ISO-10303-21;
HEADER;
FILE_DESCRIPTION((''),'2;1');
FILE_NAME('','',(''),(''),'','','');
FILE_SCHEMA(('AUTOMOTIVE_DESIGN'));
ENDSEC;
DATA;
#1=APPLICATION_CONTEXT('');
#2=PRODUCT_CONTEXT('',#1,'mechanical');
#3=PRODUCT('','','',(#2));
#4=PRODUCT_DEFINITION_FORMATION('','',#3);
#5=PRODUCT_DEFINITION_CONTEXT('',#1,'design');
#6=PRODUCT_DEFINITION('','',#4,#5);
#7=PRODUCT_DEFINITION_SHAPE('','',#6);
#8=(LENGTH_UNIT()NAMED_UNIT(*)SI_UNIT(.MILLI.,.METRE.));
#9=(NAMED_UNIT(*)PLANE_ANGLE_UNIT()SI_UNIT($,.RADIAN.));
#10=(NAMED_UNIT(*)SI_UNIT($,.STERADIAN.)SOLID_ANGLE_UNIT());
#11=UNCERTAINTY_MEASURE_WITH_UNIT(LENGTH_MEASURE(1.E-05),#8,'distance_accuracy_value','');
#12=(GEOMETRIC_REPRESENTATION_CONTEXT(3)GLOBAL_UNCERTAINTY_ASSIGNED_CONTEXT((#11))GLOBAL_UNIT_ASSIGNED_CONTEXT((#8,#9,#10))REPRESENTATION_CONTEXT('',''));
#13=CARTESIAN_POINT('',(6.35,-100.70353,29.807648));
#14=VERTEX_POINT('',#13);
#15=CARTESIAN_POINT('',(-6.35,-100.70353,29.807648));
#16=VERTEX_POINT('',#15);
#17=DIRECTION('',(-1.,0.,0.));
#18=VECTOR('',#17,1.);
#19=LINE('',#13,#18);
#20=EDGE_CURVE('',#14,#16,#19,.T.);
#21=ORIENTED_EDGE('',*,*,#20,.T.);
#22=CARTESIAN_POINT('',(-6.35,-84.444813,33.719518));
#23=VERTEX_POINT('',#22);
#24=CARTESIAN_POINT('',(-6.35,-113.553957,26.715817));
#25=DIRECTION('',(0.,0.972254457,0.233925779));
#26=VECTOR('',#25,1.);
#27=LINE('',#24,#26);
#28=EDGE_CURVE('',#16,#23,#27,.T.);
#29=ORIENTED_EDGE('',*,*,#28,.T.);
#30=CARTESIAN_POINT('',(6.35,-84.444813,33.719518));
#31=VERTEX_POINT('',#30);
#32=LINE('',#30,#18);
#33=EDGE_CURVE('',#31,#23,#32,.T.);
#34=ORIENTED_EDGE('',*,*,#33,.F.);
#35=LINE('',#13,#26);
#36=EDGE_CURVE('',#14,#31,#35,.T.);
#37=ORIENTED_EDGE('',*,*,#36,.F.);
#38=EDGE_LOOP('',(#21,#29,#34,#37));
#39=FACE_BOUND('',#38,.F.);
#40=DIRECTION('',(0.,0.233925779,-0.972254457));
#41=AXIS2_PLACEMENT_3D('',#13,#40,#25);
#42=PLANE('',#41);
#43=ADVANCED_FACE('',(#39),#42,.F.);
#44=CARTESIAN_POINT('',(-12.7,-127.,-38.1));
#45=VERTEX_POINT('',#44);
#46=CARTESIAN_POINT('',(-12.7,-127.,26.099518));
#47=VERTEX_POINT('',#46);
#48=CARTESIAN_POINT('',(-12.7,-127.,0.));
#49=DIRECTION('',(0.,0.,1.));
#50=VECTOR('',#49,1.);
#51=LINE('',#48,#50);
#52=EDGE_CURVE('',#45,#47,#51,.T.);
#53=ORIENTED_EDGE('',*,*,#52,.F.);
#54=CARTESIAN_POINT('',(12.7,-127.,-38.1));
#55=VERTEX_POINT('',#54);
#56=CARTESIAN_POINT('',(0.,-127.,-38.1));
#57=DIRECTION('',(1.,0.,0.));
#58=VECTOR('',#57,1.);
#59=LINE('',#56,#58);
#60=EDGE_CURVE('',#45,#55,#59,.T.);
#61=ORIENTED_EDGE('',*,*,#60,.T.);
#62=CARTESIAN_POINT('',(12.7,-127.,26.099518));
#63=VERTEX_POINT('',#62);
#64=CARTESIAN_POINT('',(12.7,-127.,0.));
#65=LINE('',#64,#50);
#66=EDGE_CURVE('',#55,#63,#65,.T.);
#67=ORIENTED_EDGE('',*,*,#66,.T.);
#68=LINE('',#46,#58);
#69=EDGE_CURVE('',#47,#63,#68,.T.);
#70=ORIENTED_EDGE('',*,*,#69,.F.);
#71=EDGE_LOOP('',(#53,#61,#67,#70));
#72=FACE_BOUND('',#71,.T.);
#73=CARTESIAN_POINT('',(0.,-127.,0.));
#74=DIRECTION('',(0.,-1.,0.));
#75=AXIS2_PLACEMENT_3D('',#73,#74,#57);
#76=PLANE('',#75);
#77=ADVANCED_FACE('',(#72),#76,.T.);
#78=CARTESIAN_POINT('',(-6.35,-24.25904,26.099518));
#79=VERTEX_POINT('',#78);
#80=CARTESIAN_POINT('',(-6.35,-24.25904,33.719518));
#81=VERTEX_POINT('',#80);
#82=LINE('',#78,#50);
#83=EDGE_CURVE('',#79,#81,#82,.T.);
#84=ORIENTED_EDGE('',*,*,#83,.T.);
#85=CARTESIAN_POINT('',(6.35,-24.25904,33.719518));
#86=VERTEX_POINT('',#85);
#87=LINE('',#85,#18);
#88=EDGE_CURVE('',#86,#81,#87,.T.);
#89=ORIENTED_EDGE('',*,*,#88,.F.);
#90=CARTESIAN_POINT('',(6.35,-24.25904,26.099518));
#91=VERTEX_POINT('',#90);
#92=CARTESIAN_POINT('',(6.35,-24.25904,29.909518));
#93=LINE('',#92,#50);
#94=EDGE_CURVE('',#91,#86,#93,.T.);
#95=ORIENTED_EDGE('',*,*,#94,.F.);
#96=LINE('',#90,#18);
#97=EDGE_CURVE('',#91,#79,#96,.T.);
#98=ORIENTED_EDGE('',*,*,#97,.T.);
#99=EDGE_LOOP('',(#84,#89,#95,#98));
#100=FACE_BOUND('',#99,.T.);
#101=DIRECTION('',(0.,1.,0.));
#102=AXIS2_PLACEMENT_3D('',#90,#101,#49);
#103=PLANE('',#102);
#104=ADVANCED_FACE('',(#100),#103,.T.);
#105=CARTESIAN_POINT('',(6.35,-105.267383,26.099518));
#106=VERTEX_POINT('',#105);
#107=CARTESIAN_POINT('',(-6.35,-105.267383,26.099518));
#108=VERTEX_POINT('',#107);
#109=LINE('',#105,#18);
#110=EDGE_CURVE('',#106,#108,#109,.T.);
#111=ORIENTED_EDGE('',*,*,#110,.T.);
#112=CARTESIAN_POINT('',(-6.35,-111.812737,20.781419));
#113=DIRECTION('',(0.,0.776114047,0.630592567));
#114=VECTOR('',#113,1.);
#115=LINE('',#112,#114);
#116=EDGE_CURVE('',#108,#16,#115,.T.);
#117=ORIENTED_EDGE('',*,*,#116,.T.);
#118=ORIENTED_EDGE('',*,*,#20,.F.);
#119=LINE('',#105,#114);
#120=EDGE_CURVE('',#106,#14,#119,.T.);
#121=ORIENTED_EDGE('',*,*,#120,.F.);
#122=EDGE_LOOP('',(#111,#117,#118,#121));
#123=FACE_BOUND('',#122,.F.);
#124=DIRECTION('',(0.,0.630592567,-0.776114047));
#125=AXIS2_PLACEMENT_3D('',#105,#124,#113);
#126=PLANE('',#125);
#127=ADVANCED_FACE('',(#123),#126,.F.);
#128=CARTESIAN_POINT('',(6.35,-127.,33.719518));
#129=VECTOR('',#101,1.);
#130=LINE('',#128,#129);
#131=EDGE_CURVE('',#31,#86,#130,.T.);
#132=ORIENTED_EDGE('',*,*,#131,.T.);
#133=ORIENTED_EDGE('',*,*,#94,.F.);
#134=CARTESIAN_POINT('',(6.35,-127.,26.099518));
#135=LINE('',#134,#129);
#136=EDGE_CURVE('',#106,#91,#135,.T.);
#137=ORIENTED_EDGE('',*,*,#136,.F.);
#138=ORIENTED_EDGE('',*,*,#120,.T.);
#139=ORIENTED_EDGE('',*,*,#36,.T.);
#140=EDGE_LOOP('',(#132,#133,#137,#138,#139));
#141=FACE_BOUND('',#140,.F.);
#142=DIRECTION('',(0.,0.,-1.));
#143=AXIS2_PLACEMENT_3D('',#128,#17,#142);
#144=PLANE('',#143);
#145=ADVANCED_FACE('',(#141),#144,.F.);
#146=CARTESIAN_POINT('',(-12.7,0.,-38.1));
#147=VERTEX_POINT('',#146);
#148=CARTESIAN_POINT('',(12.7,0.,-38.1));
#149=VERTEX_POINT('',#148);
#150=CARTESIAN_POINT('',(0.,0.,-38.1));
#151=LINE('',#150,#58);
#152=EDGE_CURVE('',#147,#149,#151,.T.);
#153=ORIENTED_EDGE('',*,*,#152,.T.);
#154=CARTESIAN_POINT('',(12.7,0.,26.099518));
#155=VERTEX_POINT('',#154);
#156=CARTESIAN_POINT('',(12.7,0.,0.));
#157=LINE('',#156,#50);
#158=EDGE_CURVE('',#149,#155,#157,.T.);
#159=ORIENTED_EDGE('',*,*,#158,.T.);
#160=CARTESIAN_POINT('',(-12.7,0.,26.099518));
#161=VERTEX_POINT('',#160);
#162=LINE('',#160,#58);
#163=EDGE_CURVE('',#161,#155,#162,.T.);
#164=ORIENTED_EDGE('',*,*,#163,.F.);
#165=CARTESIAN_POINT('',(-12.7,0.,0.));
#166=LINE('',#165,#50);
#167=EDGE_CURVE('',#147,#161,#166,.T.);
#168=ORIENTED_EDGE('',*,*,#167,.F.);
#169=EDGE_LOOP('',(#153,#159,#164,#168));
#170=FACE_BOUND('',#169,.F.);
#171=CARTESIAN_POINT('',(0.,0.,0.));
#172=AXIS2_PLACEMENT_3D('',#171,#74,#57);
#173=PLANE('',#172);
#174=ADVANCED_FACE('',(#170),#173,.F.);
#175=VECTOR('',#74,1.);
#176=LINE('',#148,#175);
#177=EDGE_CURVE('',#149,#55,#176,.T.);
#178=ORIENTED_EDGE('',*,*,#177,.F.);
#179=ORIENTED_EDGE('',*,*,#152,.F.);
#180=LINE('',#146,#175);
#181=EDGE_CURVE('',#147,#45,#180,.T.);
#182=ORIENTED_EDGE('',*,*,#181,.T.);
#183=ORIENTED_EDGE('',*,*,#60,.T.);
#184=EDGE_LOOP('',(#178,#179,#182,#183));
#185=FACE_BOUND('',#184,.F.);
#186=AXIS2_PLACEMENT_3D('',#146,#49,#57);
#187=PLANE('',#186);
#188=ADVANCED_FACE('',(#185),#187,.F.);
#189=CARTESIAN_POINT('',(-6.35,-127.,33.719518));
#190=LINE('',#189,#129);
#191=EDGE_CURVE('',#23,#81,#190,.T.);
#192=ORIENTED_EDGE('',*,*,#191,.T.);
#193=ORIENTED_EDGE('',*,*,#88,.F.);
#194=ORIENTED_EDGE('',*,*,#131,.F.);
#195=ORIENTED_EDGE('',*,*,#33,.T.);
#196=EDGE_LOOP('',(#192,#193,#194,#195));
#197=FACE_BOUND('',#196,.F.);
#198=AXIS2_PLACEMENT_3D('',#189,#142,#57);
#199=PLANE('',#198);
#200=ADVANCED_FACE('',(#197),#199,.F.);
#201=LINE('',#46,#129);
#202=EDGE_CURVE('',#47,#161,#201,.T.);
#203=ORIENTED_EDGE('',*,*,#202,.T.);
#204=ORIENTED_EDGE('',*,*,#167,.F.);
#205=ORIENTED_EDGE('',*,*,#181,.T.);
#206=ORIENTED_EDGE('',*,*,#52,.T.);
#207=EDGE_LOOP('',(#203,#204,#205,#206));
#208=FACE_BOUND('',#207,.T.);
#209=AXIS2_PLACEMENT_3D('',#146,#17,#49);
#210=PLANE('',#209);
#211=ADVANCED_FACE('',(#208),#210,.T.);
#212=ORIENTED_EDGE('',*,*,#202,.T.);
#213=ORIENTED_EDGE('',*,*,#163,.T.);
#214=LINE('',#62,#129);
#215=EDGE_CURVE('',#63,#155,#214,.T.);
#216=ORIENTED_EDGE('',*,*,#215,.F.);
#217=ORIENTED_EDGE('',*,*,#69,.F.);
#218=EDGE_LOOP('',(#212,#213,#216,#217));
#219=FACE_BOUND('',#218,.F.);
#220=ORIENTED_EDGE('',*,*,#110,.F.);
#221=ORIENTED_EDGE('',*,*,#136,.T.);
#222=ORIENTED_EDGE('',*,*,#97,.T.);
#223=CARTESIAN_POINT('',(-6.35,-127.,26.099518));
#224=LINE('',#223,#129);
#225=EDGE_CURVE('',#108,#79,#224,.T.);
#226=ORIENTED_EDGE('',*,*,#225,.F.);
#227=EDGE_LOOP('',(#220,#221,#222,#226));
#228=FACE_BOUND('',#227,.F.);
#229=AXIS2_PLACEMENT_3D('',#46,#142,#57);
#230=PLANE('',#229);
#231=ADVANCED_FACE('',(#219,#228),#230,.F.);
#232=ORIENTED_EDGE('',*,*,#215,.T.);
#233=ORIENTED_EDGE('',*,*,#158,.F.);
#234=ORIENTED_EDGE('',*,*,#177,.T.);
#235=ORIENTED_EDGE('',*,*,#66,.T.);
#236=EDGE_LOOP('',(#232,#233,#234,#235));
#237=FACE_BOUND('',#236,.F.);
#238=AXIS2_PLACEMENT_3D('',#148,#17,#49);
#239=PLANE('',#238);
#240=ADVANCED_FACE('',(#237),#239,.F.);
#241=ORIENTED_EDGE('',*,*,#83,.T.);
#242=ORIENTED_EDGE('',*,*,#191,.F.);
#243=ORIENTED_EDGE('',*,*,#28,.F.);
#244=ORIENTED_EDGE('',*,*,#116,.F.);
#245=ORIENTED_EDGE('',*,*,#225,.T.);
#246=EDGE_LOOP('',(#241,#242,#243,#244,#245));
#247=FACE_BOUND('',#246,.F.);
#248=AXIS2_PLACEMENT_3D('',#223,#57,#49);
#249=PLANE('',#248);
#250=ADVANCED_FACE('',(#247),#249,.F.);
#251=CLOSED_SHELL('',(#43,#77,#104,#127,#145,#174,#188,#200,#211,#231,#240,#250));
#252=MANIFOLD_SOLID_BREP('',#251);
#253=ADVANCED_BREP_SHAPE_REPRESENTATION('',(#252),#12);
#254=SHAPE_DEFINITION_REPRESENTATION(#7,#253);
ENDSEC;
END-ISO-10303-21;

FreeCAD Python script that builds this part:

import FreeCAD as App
import Part
import Sketcher

V = App.Vector
Q = App.Units.Quantity


def add_polygon(sketch, points):
    """Adds a closed chain of lines whose ends are joined by coincident constraints."""
    first, n = sketch.GeometryCount, len(points)
    for a, b in zip(points, points[1:] + points[:1]):
        sketch.addGeometry(Part.LineSegment(App.Vector(*a, 0), App.Vector(*b, 0)), False)
    for i in range(n):
        sketch.addConstraint(Sketcher.Constraint("Coincident", first + i, 2, first + (i + 1) % n, 1))

doc = App.newDocument("Part")
params = doc.addObject("Spreadsheet::Sheet", "Params")
for row, (alias, value) in enumerate([
    ("sketch1_width", "1 in"),
    ("sketch1_height", "3 in"),
    ("pad1_length", "5 in"),
    ("sketch2_width", "1 in"),
    ("sketch2_width2", "0.5 in"),
    ("sketch2_height", "0.3 in"),
    ("pocket1_length", "7 in"),
    ("sketch3_height", "0.3 in"),
    ("pocket2_length", "1 in"),
], start=1):
    params.set(f"A{row}", alias)
    params.set(f"B{row}", "=" + value)
    params.setAlias(f"B{row}", alias)

body = doc.addObject("PartDesign::Body", "Body")

# Sketch on XZ plane
sketch1 = body.newObject("Sketcher::SketchObject", "Sketch")
sketch1.AttachmentSupport = (doc.getObject("XZ_Plane"), [""])
sketch1.MapMode = "FlatFace"
add_polygon(sketch1, [(-13, 38), (-13, -38), (13, -38), (13, 38)])  # lines 0-3
sketch1.addConstraint(Sketcher.Constraint("Vertical", 0))
sketch1.addConstraint(Sketcher.Constraint("Horizontal", 1))
sketch1.addConstraint(Sketcher.Constraint("Vertical", 2))
sketch1.addConstraint(Sketcher.Constraint("Horizontal", 3))
sketch1.addConstraint(Sketcher.Constraint("Symmetric", 0, 2, 2, 2, -1, 1))
sketch1.addConstraint(Sketcher.Constraint("DistanceX", 1, 1, 1, 2, Q("1 in")))
sketch1.addConstraint(Sketcher.Constraint("DistanceY", 0, 2, 0, 1, Q("3 in")))
sketch1.setExpression("Constraints[9]", "Params.sketch1_width")
sketch1.setExpression("Constraints[10]", "Params.sketch1_height")
pad1 = body.newObject("PartDesign::Pad", "Pad")
pad1.Profile = sketch1
pad1.setExpression("Length", "Params.pad1_length")

# Sketch on XZ plane
sketch2 = body.newObject("Sketcher::SketchObject", "Sketch001")
sketch2.AttachmentSupport = (doc.getObject("XZ_Plane"), [""])
sketch2.MapMode = "FlatFace"
sketch2.AttachmentOffset = App.Placement(V(0, 0, 5 * 25.4), App.Rotation())
add_polygon(sketch2, [(6, 26), (13, 26), (13, 38), (-13, 38), (-13, 26), (-6, 26), (-6, 34), (6, 34)])  # lines 0-7
sketch2.addConstraint(Sketcher.Constraint("Horizontal", 0))
sketch2.addConstraint(Sketcher.Constraint("Vertical", 1))
sketch2.addConstraint(Sketcher.Constraint("Horizontal", 2))
sketch2.addConstraint(Sketcher.Constraint("Vertical", 3))
sketch2.addConstraint(Sketcher.Constraint("Horizontal", 4))
sketch2.addConstraint(Sketcher.Constraint("Vertical", 5))
sketch2.addConstraint(Sketcher.Constraint("Horizontal", 6))
sketch2.addConstraint(Sketcher.Constraint("Vertical", 7))
sketch2.addConstraint(Sketcher.Constraint("Symmetric", 0, 2, 3, 2, -2))
sketch2.addConstraint(Sketcher.Constraint("Equal", 0, 4))
sketch2.addConstraint(Sketcher.Constraint("DistanceX", 2, 2, 2, 1, Q("1 in")))
sketch2.addConstraint(Sketcher.Constraint("DistanceX", 6, 1, 6, 2, Q("0.5 in")))
sketch2.addConstraint(Sketcher.Constraint("DistanceY", 5, 1, 5, 2, Q("0.3 in")))
sketch2.addConstraint(Sketcher.Constraint("DistanceY", -1, 1, 1, 2, Q("1.5 in")))
sketch2.addConstraint(Sketcher.Constraint("DistanceY", 1, 1, 1, 2, Q("12.000482 mm")))
sketch2.setExpression("Constraints[18]", "Params.sketch2_width")
sketch2.setExpression("Constraints[19]", "Params.sketch2_width2")
sketch2.setExpression("Constraints[20]", "Params.sketch2_height")
pocket1 = body.newObject("PartDesign::Pocket", "Pocket")
pocket1.Profile = sketch2
pocket1.setExpression("Length", "Params.pocket1_length")

# Sketch on YZ plane
sketch3 = body.newObject("Sketcher::SketchObject", "Sketch002")
sketch3.AttachmentSupport = (doc.getObject("YZ_Plane"), [""])
sketch3.MapMode = "FlatFace"
sketch3.AttachmentOffset = App.Placement(V(0, 0, 0.25 * 25.4), App.Rotation())
add_polygon(sketch3, [(-101, 30), (-84, 34), (-127, 34), (-127, 26), (-105, 26)])  # lines 0-4
add_polygon(sketch3, [(-24, 34), (-24, 26), (0, 26), (0, 34)])  # lines 5-8
sketch3.addConstraint(Sketcher.Constraint("Horizontal", 1))
sketch3.addConstraint(Sketcher.Constraint("Vertical", 2))
sketch3.addConstraint(Sketcher.Constraint("Horizontal", 3))
sketch3.addConstraint(Sketcher.Constraint("Vertical", 5))
sketch3.addConstraint(Sketcher.Constraint("Horizontal", 6))
sketch3.addConstraint(Sketcher.Constraint("Vertical", 7))
sketch3.addConstraint(Sketcher.Constraint("Horizontal", 8))
sketch3.addConstraint(Sketcher.Constraint("PointOnObject", 6, 2, -2))
sketch3.addConstraint(Sketcher.Constraint("Horizontal", 3, 2, 5, 2))
sketch3.addConstraint(Sketcher.Constraint("Horizontal", 1, 2, 7, 2))
sketch3.addConstraint(Sketcher.Constraint("DistanceY", 2, 2, 2, 1, Q("0.3 in")))
sketch3.addConstraint(Sketcher.Constraint("DistanceX", 1, 2, -1, 1, Q("5 in")))
sketch3.addConstraint(Sketcher.Constraint("DistanceX", 6, 1, 6, 2, Q("24.25904 mm")))
sketch3.addConstraint(Sketcher.Constraint("Distance", 4, Q("5.88039 mm")))
sketch3.addConstraint(Sketcher.Constraint("DistanceX", 1, 2, 1, 1, Q("42.555187 mm")))
sketch3.addConstraint(Sketcher.Constraint("DistanceX", 3, 1, 3, 2, Q("21.732617 mm")))
sketch3.addConstraint(Sketcher.Constraint("DistanceY", -1, 1, 2, 2, Q("26.099518 mm")))
sketch3.addConstraint(Sketcher.Constraint("DistanceX", 4, 2, -1, 1, Q("100.70353 mm")))
sketch3.setExpression("Constraints[19]", "Params.sketch3_height")
pocket2 = body.newObject("PartDesign::Pocket", "Pocket001")
pocket2.Profile = sketch3
pocket2.setExpression("Length", "Params.pocket2_length")

doc.recompute()
